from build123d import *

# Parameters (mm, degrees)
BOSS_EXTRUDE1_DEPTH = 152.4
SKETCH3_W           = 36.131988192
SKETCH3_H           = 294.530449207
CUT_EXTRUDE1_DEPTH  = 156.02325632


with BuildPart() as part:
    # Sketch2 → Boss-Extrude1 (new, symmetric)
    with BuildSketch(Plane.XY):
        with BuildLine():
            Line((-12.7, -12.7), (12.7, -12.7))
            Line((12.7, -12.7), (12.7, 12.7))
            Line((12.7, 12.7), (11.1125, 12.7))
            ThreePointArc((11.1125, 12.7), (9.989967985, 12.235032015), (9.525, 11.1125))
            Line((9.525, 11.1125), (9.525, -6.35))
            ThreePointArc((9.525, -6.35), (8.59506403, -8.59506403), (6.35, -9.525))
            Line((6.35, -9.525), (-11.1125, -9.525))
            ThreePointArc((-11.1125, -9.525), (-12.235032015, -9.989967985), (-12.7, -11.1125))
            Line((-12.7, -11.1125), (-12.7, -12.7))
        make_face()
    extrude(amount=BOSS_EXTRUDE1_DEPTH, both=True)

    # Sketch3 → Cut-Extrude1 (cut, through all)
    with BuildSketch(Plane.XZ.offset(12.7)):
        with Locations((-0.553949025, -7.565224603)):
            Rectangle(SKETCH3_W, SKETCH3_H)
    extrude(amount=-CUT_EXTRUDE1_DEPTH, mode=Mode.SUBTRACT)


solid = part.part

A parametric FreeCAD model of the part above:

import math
import FreeCAD as App
import Part
import Sketcher
Q = App.Units.Quantity

doc = App.newDocument("Part")
params = doc.addObject("Spreadsheet::Sheet", "Params")
for row, (alias, value) in enumerate([
    ("sketch1_width", "1 in"),
    ("sketch1_radius", "0.0625 in"),
    ("sketch1_radius2", "0.125 in"),
    ("pad1_length", "12 in"),
], start=1):
    params.set(f"A{row}", alias)
    params.set(f"B{row}", "=" + value)
    params.setAlias(f"B{row}", alias)

body = doc.addObject("PartDesign::Body", "Body")

# Sketch on XY plane
sketch1 = body.newObject("Sketcher::SketchObject", "Sketch")
sketch1.AttachmentSupport = (doc.getObject("XY_Plane"), [""])
sketch1.MapMode = "FlatFace"
sketch1.addGeometry(Part.LineSegment(App.Vector(-12.7, -12.7, 0), App.Vector(12.7, -12.7, 0)), False)
sketch1.addGeometry(Part.LineSegment(App.Vector(12.7, -12.7, 0), App.Vector(12.7, 12.7, 0)), False)
sketch1.addGeometry(Part.LineSegment(App.Vector(12.7, 12.7, 0), App.Vector(11.1, 12.7, 0)), False)
sketch1.addGeometry(Part.ArcOfCircle(Part.Circle(App.Vector(11.1, 11.1, 0), App.Vector(0, 0, 1), 1.6), math.radians(90), math.radians(180)), False)
sketch1.addGeometry(Part.LineSegment(App.Vector(9.5, 11.1, 0), App.Vector(9.5, -6.3, 0)), False)
sketch1.addGeometry(Part.ArcOfCircle(Part.Circle(App.Vector(6.3, -6.3, 0), App.Vector(0, 0, 1), 3.2), math.radians(-90), math.radians(0)), False)
sketch1.addGeometry(Part.LineSegment(App.Vector(6.3, -9.5, 0), App.Vector(-11.1, -9.5, 0)), False)
sketch1.addGeometry(Part.ArcOfCircle(Part.Circle(App.Vector(-11.1, -11.1, 0), App.Vector(0, 0, 1), 1.6), math.radians(90), math.radians(180)), False)
sketch1.addGeometry(Part.LineSegment(App.Vector(-12.7, -11.1, 0), App.Vector(-12.7, -12.7, 0)), False)
sketch1.addConstraint(Sketcher.Constraint("Coincident", 0, 2, 1, 1))
sketch1.addConstraint(Sketcher.Constraint("Coincident", 1, 2, 2, 1))
sketch1.addConstraint(Sketcher.Constraint("Tangent", 2, 2, 3, 1))
sketch1.addConstraint(Sketcher.Constraint("Tangent", 3, 2, 4, 1))
sketch1.addConstraint(Sketcher.Constraint("Tangent", 4, 2, 5, 2))
sketch1.addConstraint(Sketcher.Constraint("Tangent", 5, 1, 6, 1))
sketch1.addConstraint(Sketcher.Constraint("Tangent", 6, 2, 7, 1))
sketch1.addConstraint(Sketcher.Constraint("Tangent", 7, 2, 8, 1))
sketch1.addConstraint(Sketcher.Constraint("Coincident", 8, 2, 0, 1))
sketch1.addConstraint(Sketcher.Constraint("Horizontal", 0))
sketch1.addConstraint(Sketcher.Constraint("Vertical", 1))
sketch1.addConstraint(Sketcher.Constraint("Horizontal", 2))
sketch1.addConstraint(Sketcher.Constraint("Vertical", 4))
sketch1.addConstraint(Sketcher.Constraint("Horizontal", 6))
sketch1.addConstraint(Sketcher.Constraint("Vertical", 8))
sketch1.addConstraint(Sketcher.Constraint("Equal", 3, 7))
sketch1.addConstraint(Sketcher.Constraint("Symmetric", 3, 3, 7, 3, -1, 1))
sketch1.addConstraint(Sketcher.Constraint("Symmetric", 1, 2, 8, 2, -1, 1))
sketch1.addConstraint(Sketcher.Constraint("Equal", 0, 1))
sketch1.addConstraint(Sketcher.Constraint("DistanceX", 0, 1, 0, 2, Q("1 in")))
sketch1.addConstraint(Sketcher.Constraint("Radius", 3, Q("0.0625 in")))
sketch1.addConstraint(Sketcher.Constraint("Radius", 5, Q("0.125 in")))
sketch1.setExpression("Constraints[19]", "Params.sketch1_width")
sketch1.setExpression("Constraints[20]", "Params.sketch1_radius")
sketch1.setExpression("Constraints[21]", "Params.sketch1_radius2")
pad1 = body.newObject("PartDesign::Pad", "Pad")
pad1.Profile = sketch1
pad1.setExpression("Length", "Params.pad1_length")
pad1.Midplane = True

# Sketch on XZ plane
sketch2 = body.newObject("Sketcher::SketchObject", "Sketch001")
sketch2.AttachmentSupport = (doc.getObject("XZ_Plane"), [""])
sketch2.MapMode = "FlatFace"
sketch2.AttachmentOffset = App.Placement(App.Vector(0, 0, 0.5 * 25.4), App.Rotation())
sketch2.addGeometry(Part.LineSegment(App.Vector(-19, 140, 0), App.Vector(-19, -155, 0)), False)
sketch2.addGeometry(Part.LineSegment(App.Vector(-19, -155, 0), App.Vector(18, -155, 0)), False)
sketch2.addGeometry(Part.LineSegment(App.Vector(18, -155, 0), App.Vector(18, 140, 0)), False)
sketch2.addGeometry(Part.LineSegment(App.Vector(18, 140, 0), App.Vector(-19, 140, 0)), False)
sketch2.addConstraint(Sketcher.Constraint("Coincident", 0, 2, 1, 1))
sketch2.addConstraint(Sketcher.Constraint("Coincident", 1, 2, 2, 1))
sketch2.addConstraint(Sketcher.Constraint("Coincident", 2, 2, 3, 1))
sketch2.addConstraint(Sketcher.Constraint("Coincident", 3, 2, 0, 1))
sketch2.addConstraint(Sketcher.Constraint("Vertical", 0))
sketch2.addConstraint(Sketcher.Constraint("Horizontal", 1))
sketch2.addConstraint(Sketcher.Constraint("Vertical", 2))
sketch2.addConstraint(Sketcher.Constraint("Horizontal", 3))
sketch2.addConstraint(Sketcher.Constraint("DistanceY", -1, 1, 2, 2, Q("5.5 in")))
sketch2.addConstraint(Sketcher.Constraint("DistanceX", 1, 1, 1, 2, Q("36.131988 mm")))
sketch2.addConstraint(Sketcher.Constraint("DistanceY", 0, 2, 0, 1, Q("294.530449 mm")))
sketch2.addConstraint(Sketcher.Constraint("DistanceX", 0, 2, -1, 1, Q("18.619943 mm")))
pocket1 = body.newObject("PartDesign::Pocket", "Pocket")
pocket1.Profile = sketch2
pocket1.Type = "ThroughAll"

doc.recompute()
